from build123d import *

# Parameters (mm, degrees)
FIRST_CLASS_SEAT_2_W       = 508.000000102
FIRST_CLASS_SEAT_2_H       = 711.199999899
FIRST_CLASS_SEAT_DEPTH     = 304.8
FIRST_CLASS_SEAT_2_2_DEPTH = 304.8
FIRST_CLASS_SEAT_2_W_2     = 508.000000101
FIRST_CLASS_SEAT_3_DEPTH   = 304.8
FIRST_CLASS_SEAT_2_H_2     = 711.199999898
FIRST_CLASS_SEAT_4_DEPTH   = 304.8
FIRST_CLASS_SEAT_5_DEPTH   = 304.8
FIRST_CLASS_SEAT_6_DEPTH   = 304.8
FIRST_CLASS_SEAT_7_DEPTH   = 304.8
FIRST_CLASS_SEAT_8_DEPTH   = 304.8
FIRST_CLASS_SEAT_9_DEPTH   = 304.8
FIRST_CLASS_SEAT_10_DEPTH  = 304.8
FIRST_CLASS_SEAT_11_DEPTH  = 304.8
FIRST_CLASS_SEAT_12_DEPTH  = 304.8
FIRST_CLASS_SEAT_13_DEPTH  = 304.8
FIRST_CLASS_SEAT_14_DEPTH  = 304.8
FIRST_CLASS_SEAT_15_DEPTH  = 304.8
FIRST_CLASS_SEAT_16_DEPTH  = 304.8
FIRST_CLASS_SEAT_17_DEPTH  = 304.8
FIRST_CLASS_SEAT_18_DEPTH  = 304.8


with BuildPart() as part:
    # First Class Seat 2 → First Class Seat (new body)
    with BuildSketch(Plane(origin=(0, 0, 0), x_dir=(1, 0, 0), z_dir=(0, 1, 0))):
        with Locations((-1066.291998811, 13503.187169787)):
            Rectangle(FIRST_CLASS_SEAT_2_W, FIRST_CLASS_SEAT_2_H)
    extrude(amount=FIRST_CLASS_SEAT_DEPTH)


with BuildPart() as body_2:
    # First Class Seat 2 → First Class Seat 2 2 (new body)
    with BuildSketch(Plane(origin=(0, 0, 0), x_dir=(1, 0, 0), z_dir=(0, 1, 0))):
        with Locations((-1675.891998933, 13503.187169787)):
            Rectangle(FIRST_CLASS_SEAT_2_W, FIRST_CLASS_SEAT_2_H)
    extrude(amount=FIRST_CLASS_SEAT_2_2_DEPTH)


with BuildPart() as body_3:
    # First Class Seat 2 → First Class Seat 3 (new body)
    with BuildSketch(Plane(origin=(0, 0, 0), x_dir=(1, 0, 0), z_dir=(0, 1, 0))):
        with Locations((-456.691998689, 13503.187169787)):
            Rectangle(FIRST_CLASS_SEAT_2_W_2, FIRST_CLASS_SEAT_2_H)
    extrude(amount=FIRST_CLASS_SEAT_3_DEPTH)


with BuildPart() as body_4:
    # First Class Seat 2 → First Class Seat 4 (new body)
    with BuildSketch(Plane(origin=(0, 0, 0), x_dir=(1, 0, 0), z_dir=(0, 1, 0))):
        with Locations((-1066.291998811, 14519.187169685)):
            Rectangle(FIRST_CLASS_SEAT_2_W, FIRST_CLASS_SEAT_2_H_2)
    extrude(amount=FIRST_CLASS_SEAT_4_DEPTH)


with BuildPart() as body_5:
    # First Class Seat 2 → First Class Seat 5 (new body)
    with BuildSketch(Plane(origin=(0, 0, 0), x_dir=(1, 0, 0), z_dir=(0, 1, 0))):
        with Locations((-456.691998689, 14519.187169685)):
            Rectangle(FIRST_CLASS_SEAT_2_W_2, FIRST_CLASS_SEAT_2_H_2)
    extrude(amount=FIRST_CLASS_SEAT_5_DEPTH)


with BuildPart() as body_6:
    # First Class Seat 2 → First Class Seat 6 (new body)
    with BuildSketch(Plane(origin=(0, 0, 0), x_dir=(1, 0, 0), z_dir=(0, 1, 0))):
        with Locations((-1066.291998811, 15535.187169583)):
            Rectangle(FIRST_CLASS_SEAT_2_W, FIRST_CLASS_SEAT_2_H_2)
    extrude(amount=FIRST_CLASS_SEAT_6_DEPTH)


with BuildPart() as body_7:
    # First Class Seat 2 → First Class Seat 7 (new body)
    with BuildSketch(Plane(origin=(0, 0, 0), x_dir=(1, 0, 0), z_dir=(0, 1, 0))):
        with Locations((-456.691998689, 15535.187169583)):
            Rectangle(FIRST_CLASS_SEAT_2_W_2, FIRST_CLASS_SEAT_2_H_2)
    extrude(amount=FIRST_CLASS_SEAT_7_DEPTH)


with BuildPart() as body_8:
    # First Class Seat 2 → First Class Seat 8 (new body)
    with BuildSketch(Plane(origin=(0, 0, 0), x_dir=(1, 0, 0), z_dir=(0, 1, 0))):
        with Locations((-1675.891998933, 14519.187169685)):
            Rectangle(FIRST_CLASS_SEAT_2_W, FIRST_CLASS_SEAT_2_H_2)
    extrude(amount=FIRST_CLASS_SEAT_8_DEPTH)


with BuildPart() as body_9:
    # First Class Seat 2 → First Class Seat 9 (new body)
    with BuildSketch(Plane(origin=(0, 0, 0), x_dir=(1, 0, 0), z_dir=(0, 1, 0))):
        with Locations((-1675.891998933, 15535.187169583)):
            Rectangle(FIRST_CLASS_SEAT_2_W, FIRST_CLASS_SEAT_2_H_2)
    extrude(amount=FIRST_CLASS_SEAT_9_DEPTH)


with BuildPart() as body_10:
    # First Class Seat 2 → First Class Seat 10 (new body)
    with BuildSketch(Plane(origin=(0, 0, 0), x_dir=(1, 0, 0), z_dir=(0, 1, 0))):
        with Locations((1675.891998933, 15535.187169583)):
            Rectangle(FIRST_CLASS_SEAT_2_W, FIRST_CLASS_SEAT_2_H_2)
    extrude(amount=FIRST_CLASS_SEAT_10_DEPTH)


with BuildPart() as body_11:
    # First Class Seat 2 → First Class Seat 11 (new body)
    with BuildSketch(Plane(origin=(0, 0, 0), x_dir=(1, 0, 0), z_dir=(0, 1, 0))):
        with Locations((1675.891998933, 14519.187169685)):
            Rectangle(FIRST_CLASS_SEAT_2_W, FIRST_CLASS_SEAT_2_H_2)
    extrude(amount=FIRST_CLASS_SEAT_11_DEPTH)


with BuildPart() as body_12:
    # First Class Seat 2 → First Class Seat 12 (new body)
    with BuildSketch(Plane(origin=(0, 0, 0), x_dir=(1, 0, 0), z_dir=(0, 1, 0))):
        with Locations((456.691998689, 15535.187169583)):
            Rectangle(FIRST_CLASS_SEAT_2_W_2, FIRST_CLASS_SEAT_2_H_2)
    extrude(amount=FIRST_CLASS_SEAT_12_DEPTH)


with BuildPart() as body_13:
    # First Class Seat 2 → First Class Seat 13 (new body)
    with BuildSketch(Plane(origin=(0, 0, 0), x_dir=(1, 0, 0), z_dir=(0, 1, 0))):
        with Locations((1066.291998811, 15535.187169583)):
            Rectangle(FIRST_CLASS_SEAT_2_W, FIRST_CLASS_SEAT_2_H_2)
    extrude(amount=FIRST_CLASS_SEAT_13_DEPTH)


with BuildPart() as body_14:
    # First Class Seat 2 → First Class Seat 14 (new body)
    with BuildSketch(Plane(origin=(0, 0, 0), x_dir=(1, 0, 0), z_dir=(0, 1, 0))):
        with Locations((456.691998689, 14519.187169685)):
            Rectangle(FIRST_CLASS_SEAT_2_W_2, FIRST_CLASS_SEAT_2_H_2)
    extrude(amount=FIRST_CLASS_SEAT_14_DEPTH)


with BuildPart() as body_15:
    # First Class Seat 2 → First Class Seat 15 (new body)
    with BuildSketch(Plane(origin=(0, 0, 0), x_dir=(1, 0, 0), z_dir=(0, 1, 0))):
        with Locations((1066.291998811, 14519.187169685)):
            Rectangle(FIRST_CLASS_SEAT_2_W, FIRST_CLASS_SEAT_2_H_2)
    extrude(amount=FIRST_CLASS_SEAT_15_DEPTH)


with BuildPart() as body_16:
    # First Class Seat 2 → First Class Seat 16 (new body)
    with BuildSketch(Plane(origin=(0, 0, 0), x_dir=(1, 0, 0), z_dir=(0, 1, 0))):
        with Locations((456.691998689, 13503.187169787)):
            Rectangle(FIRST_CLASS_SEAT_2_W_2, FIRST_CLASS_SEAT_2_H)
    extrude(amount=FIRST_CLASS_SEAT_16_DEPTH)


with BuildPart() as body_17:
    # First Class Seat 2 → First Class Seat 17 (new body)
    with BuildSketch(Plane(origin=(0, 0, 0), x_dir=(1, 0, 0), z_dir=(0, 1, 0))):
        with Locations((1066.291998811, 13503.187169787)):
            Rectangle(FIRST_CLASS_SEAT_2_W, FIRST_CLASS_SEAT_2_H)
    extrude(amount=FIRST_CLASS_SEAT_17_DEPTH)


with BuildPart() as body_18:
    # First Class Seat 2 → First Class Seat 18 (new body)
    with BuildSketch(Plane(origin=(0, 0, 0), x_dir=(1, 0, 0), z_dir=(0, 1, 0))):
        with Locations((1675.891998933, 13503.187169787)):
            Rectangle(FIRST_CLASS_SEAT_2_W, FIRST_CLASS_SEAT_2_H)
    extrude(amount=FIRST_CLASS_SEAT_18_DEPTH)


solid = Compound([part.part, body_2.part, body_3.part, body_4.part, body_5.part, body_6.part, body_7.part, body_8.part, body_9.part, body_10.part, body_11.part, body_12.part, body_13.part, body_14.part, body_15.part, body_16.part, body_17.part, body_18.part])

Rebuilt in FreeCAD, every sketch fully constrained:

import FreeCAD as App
import Part
import Sketcher
from FreeCAD import Vector
Q = App.Units.Quantity


def add_polygon(sketch, points):
    """Adds a closed chain of lines whose ends are joined by coincident constraints."""
    first, n = sketch.GeometryCount, len(points)
    for a, b in zip(points, points[1:] + points[:1]):
        sketch.addGeometry(Part.LineSegment(App.Vector(*a, 0), App.Vector(*b, 0)), False)
    for i in range(n):
        sketch.addConstraint(Sketcher.Constraint("Coincident", first + i, 2, first + (i + 1) % n, 1))

doc = App.newDocument("Part")
body = doc.addObject("PartDesign::Body", "Body")

# Sketch on XZ plane
sketch1 = doc.addObject("Sketcher::SketchObject", "Sketch")
body.addObject(sketch1)
sketch1.AttachmentSupport = (doc.XZ_Plane, [""])
sketch1.MapMode = "FlatFace"
add_polygon(sketch1, [(-1320, -13859), (-1320, -13148), (-812, -13148), (-812, -13859)])  # lines 0-3
sketch1.addConstraint(Sketcher.Constraint("Vertical", 0))
sketch1.addConstraint(Sketcher.Constraint("Horizontal", 1))
sketch1.addConstraint(Sketcher.Constraint("Vertical", 2))
sketch1.addConstraint(Sketcher.Constraint("Horizontal", 3))
sketch1.addConstraint(Sketcher.Constraint("DistanceX", 1, 1, 1, 2, Q("20 in")))
sketch1.addConstraint(Sketcher.Constraint("DistanceY", 0, 1, 0, 2, Q("28 in")))
sketch1.addConstraint(Sketcher.Constraint("DistanceX", 0, 2, -1, 1, Q("51.98 in")))
sketch1.addConstraint(Sketcher.Constraint("DistanceY", 0, 2, -1, 1, 13147.58717))
pad1 = doc.addObject("PartDesign::Pad", "Pad")
body.addObject(pad1)
pad1.Profile = sketch1
pad1.Length = Q("12 in")
pad1.Reversed = True
body2 = doc.addObject("PartDesign::Body", "Body001")

# Sketch on XZ plane
sketch2 = doc.addObject("Sketcher::SketchObject", "Sketch001")
body2.addObject(sketch2)
sketch2.AttachmentSupport = (doc.getObject("XZ_Plane001"), [""])
sketch2.MapMode = "FlatFace"
add_polygon(sketch2, [(-1930, -13859), (-1930, -13148), (-1422, -13148), (-1422, -13859)])  # lines 0-3
sketch2.addConstraint(Sketcher.Constraint("Vertical", 0))
sketch2.addConstraint(Sketcher.Constraint("Horizontal", 1))
sketch2.addConstraint(Sketcher.Constraint("Vertical", 2))
sketch2.addConstraint(Sketcher.Constraint("Horizontal", 3))
sketch2.addConstraint(Sketcher.Constraint("DistanceX", 1, 1, 1, 2, Q("20 in")))
sketch2.addConstraint(Sketcher.Constraint("DistanceY", 0, 1, 0, 2, Q("28 in")))
sketch2.addConstraint(Sketcher.Constraint("DistanceX", 0, 2, -1, 1, Q("75.98 in")))
sketch2.addConstraint(Sketcher.Constraint("DistanceY", 0, 2, -1, 1, 13147.58717))
pad2 = doc.addObject("PartDesign::Pad", "Pad001")
body2.addObject(pad2)
pad2.Profile = sketch2
pad2.Length = Q("12 in")
pad2.Reversed = True
body3 = doc.addObject("PartDesign::Body", "Body002")

# Sketch on XZ plane
sketch3 = doc.addObject("Sketcher::SketchObject", "Sketch002")
body3.addObject(sketch3)
sketch3.AttachmentSupport = (doc.getObject("XZ_Plane002"), [""])
sketch3.MapMode = "FlatFace"
add_polygon(sketch3, [(-711, -13859), (-711, -13148), (-203, -13148), (-203, -13859)])  # lines 0-3
sketch3.addConstraint(Sketcher.Constraint("Vertical", 0))
sketch3.addConstraint(Sketcher.Constraint("Horizontal", 1))
sketch3.addConstraint(Sketcher.Constraint("Vertical", 2))
sketch3.addConstraint(Sketcher.Constraint("Horizontal", 3))
sketch3.addConstraint(Sketcher.Constraint("DistanceX", 1, 1, 1, 2, Q("20 in")))
sketch3.addConstraint(Sketcher.Constraint("DistanceY", 0, 1, 0, 2, Q("28 in")))
sketch3.addConstraint(Sketcher.Constraint("DistanceX", 0, 2, -1, 1, Q("27.98 in")))
sketch3.addConstraint(Sketcher.Constraint("DistanceY", 0, 2, -1, 1, 13147.58717))
pad3 = doc.addObject("PartDesign::Pad", "Pad002")
body3.addObject(pad3)
pad3.Profile = sketch3
pad3.Length = Q("12 in")
pad3.Reversed = True
body4 = doc.addObject("PartDesign::Body", "Body003")

# Sketch on XZ plane
sketch4 = doc.addObject("Sketcher::SketchObject", "Sketch003")
body4.addObject(sketch4)
sketch4.AttachmentSupport = (doc.getObject("XZ_Plane003"), [""])
sketch4.MapMode = "FlatFace"
add_polygon(sketch4, [(-1320, -14875), (-1320, -14164), (-812, -14164), (-812, -14875)])  # lines 0-3
sketch4.addConstraint(Sketcher.Constraint("Vertical", 0))
sketch4.addConstraint(Sketcher.Constraint("Horizontal", 1))
sketch4.addConstraint(Sketcher.Constraint("Vertical", 2))
sketch4.addConstraint(Sketcher.Constraint("Horizontal", 3))
sketch4.addConstraint(Sketcher.Constraint("DistanceX", 1, 1, 1, 2, Q("20 in")))
sketch4.addConstraint(Sketcher.Constraint("DistanceY", 0, 1, 0, 2, Q("28 in")))
sketch4.addConstraint(Sketcher.Constraint("DistanceX", 0, 2, -1, 1, Q("51.98 in")))
sketch4.addConstraint(Sketcher.Constraint("DistanceY", 0, 2, -1, 1, 14163.58717))
pad4 = doc.addObject("PartDesign::Pad", "Pad003")
body4.addObject(pad4)
pad4.Profile = sketch4
pad4.Length = Q("12 in")
pad4.Reversed = True
body5 = doc.addObject("PartDesign::Body", "Body004")

# Sketch on XZ plane
sketch5 = doc.addObject("Sketcher::SketchObject", "Sketch004")
body5.addObject(sketch5)
sketch5.AttachmentSupport = (doc.getObject("XZ_Plane004"), [""])
sketch5.MapMode = "FlatFace"
add_polygon(sketch5, [(-711, -14875), (-711, -14164), (-203, -14164), (-203, -14875)])  # lines 0-3
sketch5.addConstraint(Sketcher.Constraint("Vertical", 0))
sketch5.addConstraint(Sketcher.Constraint("Horizontal", 1))
sketch5.addConstraint(Sketcher.Constraint("Vertical", 2))
sketch5.addConstraint(Sketcher.Constraint("Horizontal", 3))
sketch5.addConstraint(Sketcher.Constraint("DistanceX", 1, 1, 1, 2, Q("20 in")))
sketch5.addConstraint(Sketcher.Constraint("DistanceY", 0, 1, 0, 2, Q("28 in")))
sketch5.addConstraint(Sketcher.Constraint("DistanceX", 0, 2, -1, 1, Q("27.98 in")))
sketch5.addConstraint(Sketcher.Constraint("DistanceY", 0, 2, -1, 1, 14163.58717))
pad5 = doc.addObject("PartDesign::Pad", "Pad004")
body5.addObject(pad5)
pad5.Profile = sketch5
pad5.Length = Q("12 in")
pad5.Reversed = True
body6 = doc.addObject("PartDesign::Body", "Body005")

# Sketch on XZ plane
sketch6 = doc.addObject("Sketcher::SketchObject", "Sketch005")
body6.addObject(sketch6)
sketch6.AttachmentSupport = (doc.getObject("XZ_Plane005"), [""])
sketch6.MapMode = "FlatFace"
add_polygon(sketch6, [(-1320, -15891), (-1320, -15180), (-812, -15180), (-812, -15891)])  # lines 0-3
sketch6.addConstraint(Sketcher.Constraint("Vertical", 0))
sketch6.addConstraint(Sketcher.Constraint("Horizontal", 1))
sketch6.addConstraint(Sketcher.Constraint("Vertical", 2))
sketch6.addConstraint(Sketcher.Constraint("Horizontal", 3))
sketch6.addConstraint(Sketcher.Constraint("DistanceX", 1, 1, 1, 2, Q("20 in")))
sketch6.addConstraint(Sketcher.Constraint("DistanceY", 0, 1, 0, 2, Q("28 in")))
sketch6.addConstraint(Sketcher.Constraint("DistanceX", 0, 2, -1, 1, Q("51.98 in")))
sketch6.addConstraint(Sketcher.Constraint("DistanceY", 0, 2, -1, 1, 15179.58717))
pad6 = doc.addObject("PartDesign::Pad", "Pad005")
body6.addObject(pad6)
pad6.Profile = sketch6
pad6.Length = Q("12 in")
pad6.Reversed = True
body7 = doc.addObject("PartDesign::Body", "Body006")

# Sketch on XZ plane
sketch7 = doc.addObject("Sketcher::SketchObject", "Sketch006")
body7.addObject(sketch7)
sketch7.AttachmentSupport = (doc.getObject("XZ_Plane006"), [""])
sketch7.MapMode = "FlatFace"
add_polygon(sketch7, [(-711, -15891), (-711, -15180), (-203, -15180), (-203, -15891)])  # lines 0-3
sketch7.addConstraint(Sketcher.Constraint("Vertical", 0))
sketch7.addConstraint(Sketcher.Constraint("Horizontal", 1))
sketch7.addConstraint(Sketcher.Constraint("Vertical", 2))
sketch7.addConstraint(Sketcher.Constraint("Horizontal", 3))
sketch7.addConstraint(Sketcher.Constraint("DistanceX", 1, 1, 1, 2, Q("20 in")))
sketch7.addConstraint(Sketcher.Constraint("DistanceY", 0, 1, 0, 2, Q("28 in")))
sketch7.addConstraint(Sketcher.Constraint("DistanceX", 0, 2, -1, 1, Q("27.98 in")))
sketch7.addConstraint(Sketcher.Constraint("DistanceY", 0, 2, -1, 1, 15179.58717))
pad7 = doc.addObject("PartDesign::Pad", "Pad006")
body7.addObject(pad7)
pad7.Profile = sketch7
pad7.Length = Q("12 in")
pad7.Reversed = True
body8 = doc.addObject("PartDesign::Body", "Body007")

# Sketch on XZ plane
sketch8 = doc.addObject("Sketcher::SketchObject", "Sketch007")
body8.addObject(sketch8)
sketch8.AttachmentSupport = (doc.getObject("XZ_Plane007"), [""])
sketch8.MapMode = "FlatFace"
add_polygon(sketch8, [(-1930, -14875), (-1930, -14164), (-1422, -14164), (-1422, -14875)])  # lines 0-3
sketch8.addConstraint(Sketcher.Constraint("Vertical", 0))
sketch8.addConstraint(Sketcher.Constraint("Horizontal", 1))
sketch8.addConstraint(Sketcher.Constraint("Vertical", 2))
sketch8.addConstraint(Sketcher.Constraint("Horizontal", 3))
sketch8.addConstraint(Sketcher.Constraint("DistanceX", 1, 1, 1, 2, Q("20 in")))
sketch8.addConstraint(Sketcher.Constraint("DistanceY", 0, 1, 0, 2, Q("28 in")))
sketch8.addConstraint(Sketcher.Constraint("DistanceX", 0, 2, -1, 1, Q("75.98 in")))
sketch8.addConstraint(Sketcher.Constraint("DistanceY", 0, 2, -1, 1, 14163.58717))
pad8 = doc.addObject("PartDesign::Pad", "Pad007")
body8.addObject(pad8)
pad8.Profile = sketch8
pad8.Length = Q("12 in")
pad8.Reversed = True
body9 = doc.addObject("PartDesign::Body", "Body008")

# Sketch on XZ plane
sketch9 = doc.addObject("Sketcher::SketchObject", "Sketch008")
body9.addObject(sketch9)
sketch9.AttachmentSupport = (doc.getObject("XZ_Plane008"), [""])
sketch9.MapMode = "FlatFace"
add_polygon(sketch9, [(-1930, -15891), (-1930, -15180), (-1422, -15180), (-1422, -15891)])  # lines 0-3
sketch9.addConstraint(Sketcher.Constraint("Vertical", 0))
sketch9.addConstraint(Sketcher.Constraint("Horizontal", 1))
sketch9.addConstraint(Sketcher.Constraint("Vertical", 2))
sketch9.addConstraint(Sketcher.Constraint("Horizontal", 3))
sketch9.addConstraint(Sketcher.Constraint("DistanceX", 1, 1, 1, 2, Q("20 in")))
sketch9.addConstraint(Sketcher.Constraint("DistanceY", 0, 1, 0, 2, Q("28 in")))
sketch9.addConstraint(Sketcher.Constraint("DistanceX", 0, 2, -1, 1, Q("75.98 in")))
sketch9.addConstraint(Sketcher.Constraint("DistanceY", 0, 2, -1, 1, 15179.58717))
pad9 = doc.addObject("PartDesign::Pad", "Pad008")
body9.addObject(pad9)
pad9.Profile = sketch9
pad9.Length = Q("12 in")
pad9.Reversed = True
body10 = doc.addObject("PartDesign::Body", "Body009")

# Sketch on XZ plane
sketch10 = doc.addObject("Sketcher::SketchObject", "Sketch009")
body10.addObject(sketch10)
sketch10.AttachmentSupport = (doc.getObject("XZ_Plane009"), [""])
sketch10.MapMode = "FlatFace"
add_polygon(sketch10, [(1422, -15891), (1422, -15180), (1930, -15180), (1930, -15891)])  # lines 0-3
sketch10.addConstraint(Sketcher.Constraint("Vertical", 0))
sketch10.addConstraint(Sketcher.Constraint("Horizontal", 1))
sketch10.addConstraint(Sketcher.Constraint("Vertical", 2))
sketch10.addConstraint(Sketcher.Constraint("Horizontal", 3))
sketch10.addConstraint(Sketcher.Constraint("DistanceX", 1, 1, 1, 2, Q("20 in")))
sketch10.addConstraint(Sketcher.Constraint("DistanceY", 0, 1, 0, 2, Q("28 in")))
sketch10.addConstraint(Sketcher.Constraint("DistanceX", -1, 1, 0, 2, Q("55.98 in")))
sketch10.addConstraint(Sketcher.Constraint("DistanceY", 0, 2, -1, 1, 15179.58717))
pad10 = doc.addObject("PartDesign::Pad", "Pad009")
body10.addObject(pad10)
pad10.Profile = sketch10
pad10.Length = Q("12 in")
pad10.Reversed = True
body11 = doc.addObject("PartDesign::Body", "Body010")

# Sketch on XZ plane
sketch11 = doc.addObject("Sketcher::SketchObject", "Sketch010")
body11.addObject(sketch11)
sketch11.AttachmentSupport = (doc.getObject("XZ_Plane010"), [""])
sketch11.MapMode = "FlatFace"
add_polygon(sketch11, [(1422, -14875), (1422, -14164), (1930, -14164), (1930, -14875)])  # lines 0-3
sketch11.addConstraint(Sketcher.Constraint("Vertical", 0))
sketch11.addConstraint(Sketcher.Constraint("Horizontal", 1))
sketch11.addConstraint(Sketcher.Constraint("Vertical", 2))
sketch11.addConstraint(Sketcher.Constraint("Horizontal", 3))
sketch11.addConstraint(Sketcher.Constraint("DistanceX", 1, 1, 1, 2, Q("20 in")))
sketch11.addConstraint(Sketcher.Constraint("DistanceY", 0, 1, 0, 2, Q("28 in")))
sketch11.addConstraint(Sketcher.Constraint("DistanceX", -1, 1, 0, 2, Q("55.98 in")))
sketch11.addConstraint(Sketcher.Constraint("DistanceY", 0, 2, -1, 1, 14163.58717))
pad11 = doc.addObject("PartDesign::Pad", "Pad010")
body11.addObject(pad11)
pad11.Profile = sketch11
pad11.Length = Q("12 in")
pad11.Reversed = True
body12 = doc.addObject("PartDesign::Body", "Body011")

# Sketch on XZ plane
sketch12 = doc.addObject("Sketcher::SketchObject", "Sketch011")
body12.addObject(sketch12)
sketch12.AttachmentSupport = (doc.getObject("XZ_Plane011"), [""])
sketch12.MapMode = "FlatFace"
add_polygon(sketch12, [(203, -15891), (203, -15180), (711, -15180), (711, -15891)])  # lines 0-3
sketch12.addConstraint(Sketcher.Constraint("Vertical", 0))
sketch12.addConstraint(Sketcher.Constraint("Horizontal", 1))
sketch12.addConstraint(Sketcher.Constraint("Vertical", 2))
sketch12.addConstraint(Sketcher.Constraint("Horizontal", 3))
sketch12.addConstraint(Sketcher.Constraint("DistanceX", 1, 1, 1, 2, Q("20 in")))
sketch12.addConstraint(Sketcher.Constraint("DistanceY", 0, 1, 0, 2, Q("28 in")))
sketch12.addConstraint(Sketcher.Constraint("DistanceX", -1, 1, 0, 2, Q("7.9799999 in")))
sketch12.addConstraint(Sketcher.Constraint("DistanceY", 0, 2, -1, 1, 15179.58717))
pad12 = doc.addObject("PartDesign::Pad", "Pad011")
body12.addObject(pad12)
pad12.Profile = sketch12
pad12.Length = Q("12 in")
pad12.Reversed = True
body13 = doc.addObject("PartDesign::Body", "Body012")

# Sketch on XZ plane
sketch13 = doc.addObject("Sketcher::SketchObject", "Sketch012")
body13.addObject(sketch13)
sketch13.AttachmentSupport = (doc.getObject("XZ_Plane012"), [""])
sketch13.MapMode = "FlatFace"
add_polygon(sketch13, [(812, -15891), (812, -15180), (1320, -15180), (1320, -15891)])  # lines 0-3
sketch13.addConstraint(Sketcher.Constraint("Vertical", 0))
sketch13.addConstraint(Sketcher.Constraint("Horizontal", 1))
sketch13.addConstraint(Sketcher.Constraint("Vertical", 2))
sketch13.addConstraint(Sketcher.Constraint("Horizontal", 3))
sketch13.addConstraint(Sketcher.Constraint("DistanceX", 1, 1, 1, 2, Q("20 in")))
sketch13.addConstraint(Sketcher.Constraint("DistanceY", 0, 1, 0, 2, Q("28 in")))
sketch13.addConstraint(Sketcher.Constraint("DistanceX", -1, 1, 0, 2, Q("31.98 in")))
sketch13.addConstraint(Sketcher.Constraint("DistanceY", 0, 2, -1, 1, 15179.58717))
pad13 = doc.addObject("PartDesign::Pad", "Pad012")
body13.addObject(pad13)
pad13.Profile = sketch13
pad13.Length = Q("12 in")
pad13.Reversed = True
body14 = doc.addObject("PartDesign::Body", "Body013")

# Sketch on XZ plane
sketch14 = doc.addObject("Sketcher::SketchObject", "Sketch013")
body14.addObject(sketch14)
sketch14.AttachmentSupport = (doc.getObject("XZ_Plane013"), [""])
sketch14.MapMode = "FlatFace"
add_polygon(sketch14, [(203, -14875), (203, -14164), (711, -14164), (711, -14875)])  # lines 0-3
sketch14.addConstraint(Sketcher.Constraint("Vertical", 0))
sketch14.addConstraint(Sketcher.Constraint("Horizontal", 1))
sketch14.addConstraint(Sketcher.Constraint("Vertical", 2))
sketch14.addConstraint(Sketcher.Constraint("Horizontal", 3))
sketch14.addConstraint(Sketcher.Constraint("DistanceX", 1, 1, 1, 2, Q("20 in")))
sketch14.addConstraint(Sketcher.Constraint("DistanceY", 0, 1, 0, 2, Q("28 in")))
sketch14.addConstraint(Sketcher.Constraint("DistanceX", -1, 1, 0, 2, Q("7.9799999 in")))
sketch14.addConstraint(Sketcher.Constraint("DistanceY", 0, 2, -1, 1, 14163.58717))
pad14 = doc.addObject("PartDesign::Pad", "Pad013")
body14.addObject(pad14)
pad14.Profile = sketch14
pad14.Length = Q("12 in")
pad14.Reversed = True
body15 = doc.addObject("PartDesign::Body", "Body014")

# Sketch on XZ plane
sketch15 = doc.addObject("Sketcher::SketchObject", "Sketch014")
body15.addObject(sketch15)
sketch15.AttachmentSupport = (doc.getObject("XZ_Plane014"), [""])
sketch15.MapMode = "FlatFace"
add_polygon(sketch15, [(812, -14875), (812, -14164), (1320, -14164), (1320, -14875)])  # lines 0-3
sketch15.addConstraint(Sketcher.Constraint("Vertical", 0))
sketch15.addConstraint(Sketcher.Constraint("Horizontal", 1))
sketch15.addConstraint(Sketcher.Constraint("Vertical", 2))
sketch15.addConstraint(Sketcher.Constraint("Horizontal", 3))
sketch15.addConstraint(Sketcher.Constraint("DistanceX", 1, 1, 1, 2, Q("20 in")))
sketch15.addConstraint(Sketcher.Constraint("DistanceY", 0, 1, 0, 2, Q("28 in")))
sketch15.addConstraint(Sketcher.Constraint("DistanceX", -1, 1, 0, 2, Q("31.98 in")))
sketch15.addConstraint(Sketcher.Constraint("DistanceY", 0, 2, -1, 1, 14163.58717))
pad15 = doc.addObject("PartDesign::Pad", "Pad014")
body15.addObject(pad15)
pad15.Profile = sketch15
pad15.Length = Q("12 in")
pad15.Reversed = True
body16 = doc.addObject("PartDesign::Body", "Body015")

# Sketch on XZ plane
sketch16 = doc.addObject("Sketcher::SketchObject", "Sketch015")
body16.addObject(sketch16)
sketch16.AttachmentSupport = (doc.getObject("XZ_Plane015"), [""])
sketch16.MapMode = "FlatFace"
add_polygon(sketch16, [(203, -13859), (203, -13148), (711, -13148), (711, -13859)])  # lines 0-3
sketch16.addConstraint(Sketcher.Constraint("Vertical", 0))
sketch16.addConstraint(Sketcher.Constraint("Horizontal", 1))
sketch16.addConstraint(Sketcher.Constraint("Vertical", 2))
sketch16.addConstraint(Sketcher.Constraint("Horizontal", 3))
sketch16.addConstraint(Sketcher.Constraint("DistanceX", 1, 1, 1, 2, Q("20 in")))
sketch16.addConstraint(Sketcher.Constraint("DistanceY", 0, 1, 0, 2, Q("28 in")))
sketch16.addConstraint(Sketcher.Constraint("DistanceX", -1, 1, 0, 2, Q("7.9799999 in")))
sketch16.addConstraint(Sketcher.Constraint("DistanceY", 0, 2, -1, 1, 13147.58717))
pad16 = doc.addObject("PartDesign::Pad", "Pad015")
body16.addObject(pad16)
pad16.Profile = sketch16
pad16.Length = Q("12 in")
pad16.Reversed = True
body17 = doc.addObject("PartDesign::Body", "Body016")

# Sketch on XZ plane
sketch17 = doc.addObject("Sketcher::SketchObject", "Sketch016")
body17.addObject(sketch17)
sketch17.AttachmentSupport = (doc.getObject("XZ_Plane016"), [""])
sketch17.MapMode = "FlatFace"
add_polygon(sketch17, [(812, -13859), (812, -13148), (1320, -13148), (1320, -13859)])  # lines 0-3
sketch17.addConstraint(Sketcher.Constraint("Vertical", 0))
sketch17.addConstraint(Sketcher.Constraint("Horizontal", 1))
sketch17.addConstraint(Sketcher.Constraint("Vertical", 2))
sketch17.addConstraint(Sketcher.Constraint("Horizontal", 3))
sketch17.addConstraint(Sketcher.Constraint("DistanceX", 1, 1, 1, 2, Q("20 in")))
sketch17.addConstraint(Sketcher.Constraint("DistanceY", 0, 1, 0, 2, Q("28 in")))
sketch17.addConstraint(Sketcher.Constraint("DistanceX", -1, 1, 0, 2, Q("31.98 in")))
sketch17.addConstraint(Sketcher.Constraint("DistanceY", 0, 2, -1, 1, 13147.58717))
pad17 = doc.addObject("PartDesign::Pad", "Pad016")
body17.addObject(pad17)
pad17.Profile = sketch17
pad17.Length = Q("12 in")
pad17.Reversed = True
body18 = doc.addObject("PartDesign::Body", "Body017")

# Sketch on XZ plane
sketch18 = doc.addObject("Sketcher::SketchObject", "Sketch017")
body18.addObject(sketch18)
sketch18.AttachmentSupport = (doc.getObject("XZ_Plane017"), [""])
sketch18.MapMode = "FlatFace"
add_polygon(sketch18, [(1422, -13859), (1422, -13148), (1930, -13148), (1930, -13859)])  # lines 0-3
sketch18.addConstraint(Sketcher.Constraint("Vertical", 0))
sketch18.addConstraint(Sketcher.Constraint("Horizontal", 1))
sketch18.addConstraint(Sketcher.Constraint("Vertical", 2))
sketch18.addConstraint(Sketcher.Constraint("Horizontal", 3))
sketch18.addConstraint(Sketcher.Constraint("DistanceX", 1, 1, 1, 2, Q("20 in")))
sketch18.addConstraint(Sketcher.Constraint("DistanceY", 0, 1, 0, 2, Q("28 in")))
sketch18.addConstraint(Sketcher.Constraint("DistanceX", -1, 1, 0, 2, Q("55.98 in")))
sketch18.addConstraint(Sketcher.Constraint("DistanceY", 0, 2, -1, 1, 13147.58717))
pad18 = doc.addObject("PartDesign::Pad", "Pad017")
body18.addObject(pad18)
pad18.Profile = sketch18
pad18.Length = Q("12 in")
pad18.Reversed = True

doc.recompute()
